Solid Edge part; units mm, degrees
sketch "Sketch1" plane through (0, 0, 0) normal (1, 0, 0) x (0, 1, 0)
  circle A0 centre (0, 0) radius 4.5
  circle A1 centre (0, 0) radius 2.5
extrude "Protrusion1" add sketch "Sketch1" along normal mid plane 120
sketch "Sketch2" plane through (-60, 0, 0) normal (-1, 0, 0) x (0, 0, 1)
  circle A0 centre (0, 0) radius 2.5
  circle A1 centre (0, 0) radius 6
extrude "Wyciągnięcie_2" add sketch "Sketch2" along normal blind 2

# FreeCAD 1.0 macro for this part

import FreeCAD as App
import Part
import Sketcher
from FreeCAD import Vector

doc = App.newDocument("Part")
body = doc.addObject("PartDesign::Body", "Body")

sketch1 = body.newObject("Sketcher::SketchObject", "Sketch")
sketch1.AttachmentSupport = (doc.getObject("YZ_Plane"), [""])
sketch1.MapMode = "FlatFace"
sketch1.addGeometry(Part.Circle(Vector(0, 0, 0), Vector(0, 0, 1), 4.5), False)
sketch1.addGeometry(Part.Circle(Vector(0, 0, 0), Vector(0, 0, 1), 2.5), False)
sketch1.addConstraint(Sketcher.Constraint("Coincident", 0, 3, -1, 1))
sketch1.addConstraint(Sketcher.Constraint("Coincident", 1, 3, -1, 1))
sketch1.addConstraint(Sketcher.Constraint("Diameter", 0, 9.0))
sketch1.addConstraint(Sketcher.Constraint("Diameter", 1, 5.0))
pad1 = body.newObject("PartDesign::Pad", "Pad")
pad1.Profile = sketch1
pad1.Length = 120
pad1.Midplane = True

sketch2 = body.newObject("Sketcher::SketchObject", "Sketch001")
sketch2.AttachmentSupport = (doc.getObject("YZ_Plane"), [""])
sketch2.MapMode = "FlatFace"
sketch2.AttachmentOffset = App.Placement(Vector(0, 0, -60), App.Rotation())
sketch2.addGeometry(Part.Circle(Vector(0, 0, 0), Vector(0, 0, 1), 6), False)
sketch2.addGeometry(Part.Circle(Vector(0, 0, 0), Vector(0, 0, 1), 2.5), False)
sketch2.addConstraint(Sketcher.Constraint("Coincident", 0, 3, -1, 1))
sketch2.addConstraint(Sketcher.Constraint("Coincident", 1, 3, -1, 1))
sketch2.addConstraint(Sketcher.Constraint("Diameter", 0, 12.0))
sketch2.addConstraint(Sketcher.Constraint("Diameter", 1, 5.0))
pad2 = body.newObject("PartDesign::Pad", "Pad001")
pad2.Profile = sketch2
pad2.Length = 2
pad2.Reversed = True

doc.recompute()
